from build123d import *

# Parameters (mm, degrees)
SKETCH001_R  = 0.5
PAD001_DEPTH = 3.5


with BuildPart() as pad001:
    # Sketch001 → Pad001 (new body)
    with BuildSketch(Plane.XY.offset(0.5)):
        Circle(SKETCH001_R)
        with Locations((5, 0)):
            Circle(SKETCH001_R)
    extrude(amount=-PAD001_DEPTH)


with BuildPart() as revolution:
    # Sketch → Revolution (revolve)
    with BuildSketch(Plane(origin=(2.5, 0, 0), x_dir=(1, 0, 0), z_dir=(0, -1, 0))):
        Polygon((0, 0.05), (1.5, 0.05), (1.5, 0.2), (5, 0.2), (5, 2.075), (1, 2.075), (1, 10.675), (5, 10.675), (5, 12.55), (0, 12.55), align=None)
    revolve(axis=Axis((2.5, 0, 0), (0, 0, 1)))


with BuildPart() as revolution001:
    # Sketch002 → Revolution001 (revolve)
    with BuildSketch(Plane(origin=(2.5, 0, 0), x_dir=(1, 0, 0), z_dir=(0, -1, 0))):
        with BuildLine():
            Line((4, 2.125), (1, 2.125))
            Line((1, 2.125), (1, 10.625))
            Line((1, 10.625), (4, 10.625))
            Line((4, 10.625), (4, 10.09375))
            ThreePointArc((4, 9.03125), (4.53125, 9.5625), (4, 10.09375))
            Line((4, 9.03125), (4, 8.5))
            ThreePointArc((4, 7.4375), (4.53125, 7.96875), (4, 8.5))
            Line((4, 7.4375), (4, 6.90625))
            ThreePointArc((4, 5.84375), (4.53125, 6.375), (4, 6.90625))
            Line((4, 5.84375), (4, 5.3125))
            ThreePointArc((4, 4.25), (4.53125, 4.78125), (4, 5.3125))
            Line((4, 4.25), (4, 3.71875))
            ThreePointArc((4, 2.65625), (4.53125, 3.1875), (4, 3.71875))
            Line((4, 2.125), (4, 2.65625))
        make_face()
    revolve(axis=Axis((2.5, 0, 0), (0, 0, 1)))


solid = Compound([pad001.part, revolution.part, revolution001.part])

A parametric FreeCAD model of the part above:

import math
import FreeCAD as App
import Part
import Sketcher
from FreeCAD import Vector
Q = App.Units.Quantity

doc = App.newDocument("Part")
params = doc.addObject("Spreadsheet::Sheet", "Params")
for row, (alias, value) in enumerate([
    ("sketch1_diameter", "1 mm"),
    ("pad1_length", "3.5 mm"),
    ("sketch2_width", "4 mm"),
    ("sketch2_width2", "5 mm"),
    ("sketch2_width3", "1.5 mm"),
    ("sketch2_height", "8.6 mm"),
    ("sketch2_height2", "12.5 mm"),
    ("revolution_angle", "360 deg"),
    ("sketch3_width", "3 mm"),
    ("sketch3_height", "8.5 mm"),
    ("revolution2_angle", "360 deg"),
], start=1):
    params.set(f"A{row}", alias)
    params.set(f"B{row}", "=" + value)
    params.setAlias(f"B{row}", alias)

body = doc.addObject("PartDesign::Body", "Body")
body.AllowCompound = True

# Sketch on XY plane
sketch1 = body.newObject("Sketcher::SketchObject", "Sketch")
sketch1.AttachmentSupport = (doc.getObject("XY_Plane"), [""])
sketch1.MapMode = "FlatFace"
sketch1.AttachmentOffset = App.Placement(Vector(0, 0, 0.5), App.Rotation())
sketch1.addGeometry([
    Part.Circle(Vector(0, 0, 0), Vector(0, 0, 1), 0.5),
    Part.Circle(Vector(5, 0, 0), Vector(0, 0, 1), 0.5),
], False)
sketch1.addConstraint([
    Sketcher.Constraint("Coincident", 0, 3, -1, 1),
    Sketcher.Constraint("Equal", 0, 1),
    Sketcher.Constraint("PointOnObject", 1, 3, -1),
    Sketcher.Constraint("Diameter", 0, Q("1 mm")),
    Sketcher.Constraint("DistanceX", -1, 1, 1, 3, Q("5 mm")),
])
sketch1.setExpression("Constraints[3]", "Params.sketch1_diameter")
pad1 = body.newObject("PartDesign::Pad", "Pad")
pad1.Profile = sketch1
pad1.setExpression("Length", "Params.pad1_length")
pad1.Reversed = True
body2 = doc.addObject("PartDesign::Body", "Body001")

# Sketch on XZ plane
sketch2 = body2.newObject("Sketcher::SketchObject", "Sketch001")
sketch2.AttachmentSupport = (doc.getObject("XZ_Plane001"), [""])
sketch2.MapMode = "FlatFace"
sketch2.addGeometry([
    Part.LineSegment(Vector(2.5, 0.05, 0), Vector(4, 0.05, 0)),  # 0
    Part.LineSegment(Vector(4, 0.05, 0), Vector(4, 0.2, 0)),  # 1
    Part.LineSegment(Vector(4, 0.2, 0), Vector(7.5, 0.2, 0)),  # 2
    Part.LineSegment(Vector(7.5, 0.2, 0), Vector(7.5, 2.08, 0)),  # 3
    Part.LineSegment(Vector(7.5, 2.08, 0), Vector(3.5, 2.08, 0)),  # 4
    Part.LineSegment(Vector(3.5, 2.08, 0), Vector(3.5, 10.68, 0)),  # 5
    Part.LineSegment(Vector(3.5, 10.68, 0), Vector(7.5, 10.68, 0)),  # 6
    Part.LineSegment(Vector(7.5, 10.68, 0), Vector(7.5, 12.55, 0)),  # 7
    Part.LineSegment(Vector(7.5, 12.55, 0), Vector(2.5, 12.55, 0)),  # 8
    Part.LineSegment(Vector(2.5, 12.55, 0), Vector(2.5, 0.05, 0)),  # 9
], False)
sketch2.addGeometry(Part.LineSegment(Vector(2.5, 0.05, 0), Vector(2.5, 12.55, 0)), True)  # axis
sketch2.addConstraint([
    Sketcher.Constraint("Coincident", 0, 2, 1, 1),
    Sketcher.Constraint("Coincident", 1, 2, 2, 1),
    Sketcher.Constraint("Coincident", 2, 2, 3, 1),
    Sketcher.Constraint("Coincident", 3, 2, 4, 1),
    Sketcher.Constraint("Coincident", 4, 2, 5, 1),
    Sketcher.Constraint("Coincident", 5, 2, 6, 1),
    Sketcher.Constraint("Coincident", 6, 2, 7, 1),
    Sketcher.Constraint("Coincident", 7, 2, 8, 1),
    Sketcher.Constraint("Coincident", 8, 2, 9, 1),
    Sketcher.Constraint("Coincident", 9, 2, 0, 1),
    Sketcher.Constraint("Horizontal", 0),
    Sketcher.Constraint("Vertical", 1),
    Sketcher.Constraint("Horizontal", 2),
    Sketcher.Constraint("Vertical", 3),
    Sketcher.Constraint("Horizontal", 4),
    Sketcher.Constraint("Vertical", 5),
    Sketcher.Constraint("Horizontal", 6),
    Sketcher.Constraint("Vertical", 7),
    Sketcher.Constraint("Horizontal", 8),
    Sketcher.Constraint("Vertical", 9),
    Sketcher.Constraint("Vertical", 10),
    Sketcher.Constraint("Coincident", 10, 1, 9, 2),
    Sketcher.Constraint("Horizontal", 7, 2, 10, 2),
    Sketcher.Constraint("Vertical", 3, 2, 6, 2),
    Sketcher.Constraint("Equal", 3, 7),
    Sketcher.Constraint("DistanceX", 4, 2, 4, 1, Q("4 mm")),
    Sketcher.Constraint("DistanceX", 8, 2, 8, 1, Q("5 mm")),
    Sketcher.Constraint("DistanceX", 0, 1, 0, 2, Q("1.5 mm")),
    Sketcher.Constraint("DistanceY", 5, 1, 5, 2, Q("8.6 mm")),
    Sketcher.Constraint("DistanceY", 9, 2, 9, 1, Q("12.5 mm")),
    Sketcher.Constraint("DistanceX", -1, 1, 0, 2, Q("4 mm")),
    Sketcher.Constraint("DistanceY", 1, 1, 1, 2, Q("0.15 mm")),
    Sketcher.Constraint("DistanceY", -1, 1, 1, 2, Q("0.2 mm")),
])
sketch2.setExpression("Constraints[25]", "Params.sketch2_width")
sketch2.setExpression("Constraints[26]", "Params.sketch2_width2")
sketch2.setExpression("Constraints[27]", "Params.sketch2_width3")
sketch2.setExpression("Constraints[28]", "Params.sketch2_height")
sketch2.setExpression("Constraints[29]", "Params.sketch2_height2")
revolution = body2.newObject("PartDesign::Revolution", "Revolution")
revolution.Profile = sketch2
revolution.ReferenceAxis = (sketch2, ["Axis0"])
revolution.setExpression("Angle", "Params.revolution_angle")
body3 = doc.addObject("PartDesign::Body", "Body002")

# Sketch on XZ plane
sketch3 = body3.newObject("Sketcher::SketchObject", "Sketch002")
sketch3.AttachmentSupport = (doc.getObject("XZ_Plane002"), [""])
sketch3.MapMode = "FlatFace"
sketch3.addGeometry([
    Part.LineSegment(Vector(3.5, 2.1, 0), Vector(6.5, 2.1, 0)),  # 0
    Part.LineSegment(Vector(6.5, 2.1, 0), Vector(6.5, 2.7, 0)),  # 1
    Part.ArcOfCircle(Part.Circle(Vector(6.5, 3.2, 0), Vector(0, 0, 1), 0.5), math.radians(-90), math.radians(90)),  # 2
    Part.LineSegment(Vector(6.5, 3.7, 0), Vector(6.5, 4.2, 0)),  # 3
    Part.ArcOfCircle(Part.Circle(Vector(6.5, 4.8, 0), Vector(0, 0, 1), 0.5), math.radians(-90), math.radians(90)),  # 4
    Part.LineSegment(Vector(6.5, 5.3, 0), Vector(6.5, 5.8, 0)),  # 5
    Part.ArcOfCircle(Part.Circle(Vector(6.5, 6.4, 0), Vector(0, 0, 1), 0.5), math.radians(-90), math.radians(90)),  # 6
    Part.LineSegment(Vector(6.5, 6.9, 0), Vector(6.5, 7.4, 0)),  # 7
    Part.ArcOfCircle(Part.Circle(Vector(6.5, 8, 0), Vector(0, 0, 1), 0.5), math.radians(-90), math.radians(90)),  # 8
    Part.LineSegment(Vector(6.5, 8.5, 0), Vector(6.5, 9, 0)),  # 9
    Part.ArcOfCircle(Part.Circle(Vector(6.5, 9.6, 0), Vector(0, 0, 1), 0.5), math.radians(-90), math.radians(90)),  # 10
    Part.LineSegment(Vector(6.5, 10.1, 0), Vector(6.5, 10.6, 0)),  # 11
    Part.LineSegment(Vector(6.5, 10.6, 0), Vector(3.5, 10.6, 0)),  # 12
    Part.LineSegment(Vector(3.5, 10.6, 0), Vector(3.5, 2.1, 0)),  # 13
], False)
sketch3.addGeometry(Part.LineSegment(Vector(2.5, 2.1, 0), Vector(2.5, 10.6, 0)), True)  # axis
sketch3.addConstraint([
    Sketcher.Constraint("Coincident", 0, 2, 1, 1),
    Sketcher.Constraint("Coincident", 1, 2, 2, 1),
    Sketcher.Constraint("Coincident", 2, 2, 3, 1),
    Sketcher.Constraint("Coincident", 3, 2, 4, 1),
    Sketcher.Constraint("Coincident", 4, 2, 5, 1),
    Sketcher.Constraint("Coincident", 5, 2, 6, 1),
    Sketcher.Constraint("Coincident", 6, 2, 7, 1),
    Sketcher.Constraint("Coincident", 7, 2, 8, 1),
    Sketcher.Constraint("Coincident", 8, 2, 9, 1),
    Sketcher.Constraint("Coincident", 9, 2, 10, 1),
    Sketcher.Constraint("Coincident", 10, 2, 11, 1),
    Sketcher.Constraint("Coincident", 11, 2, 12, 1),
    Sketcher.Constraint("Coincident", 12, 2, 13, 1),
    Sketcher.Constraint("Coincident", 13, 2, 0, 1),
    Sketcher.Constraint("Horizontal", 0),
    Sketcher.Constraint("Vertical", 1),
    Sketcher.Constraint("Vertical", 3),
    Sketcher.Constraint("Vertical", 5),
    Sketcher.Constraint("Vertical", 7),
    Sketcher.Constraint("Vertical", 9),
    Sketcher.Constraint("Vertical", 11),
    Sketcher.Constraint("Horizontal", 12),
    Sketcher.Constraint("Vertical", 13),
    Sketcher.Constraint("Vertical", 14),
    Sketcher.Constraint("Equal", 2, 4),
    Sketcher.Constraint("Equal", 4, 6),
    Sketcher.Constraint("Equal", 6, 8),
    Sketcher.Constraint("Equal", 8, 10),
    Sketcher.Constraint("Horizontal", 13, 2, 14, 1),
    Sketcher.Constraint("Horizontal", 12, 2, 14, 2),
    Sketcher.Constraint("Vertical", 2, 3, 4, 3),
    Sketcher.Constraint("Vertical", 4, 3, 6, 3),
    Sketcher.Constraint("Vertical", 6, 3, 8, 3),
    Sketcher.Constraint("Vertical", 8, 3, 10, 3),
    Sketcher.Constraint("Vertical", 10, 3, 0, 2),
    Sketcher.Constraint("Vertical", 1, 2, 2, 2),
    Sketcher.Constraint("Vertical", 3, 2, 4, 2),
    Sketcher.Constraint("Vertical", 5, 2, 6, 2),
    Sketcher.Constraint("Vertical", 7, 2, 8, 2),
    Sketcher.Constraint("Vertical", 9, 2, 10, 2),
    Sketcher.Constraint("Equal", 1, 3),
    Sketcher.Constraint("Equal", 3, 5),
    Sketcher.Constraint("Equal", 5, 7),
    Sketcher.Constraint("Equal", 7, 9),
    Sketcher.Constraint("Equal", 9, 11),
    Sketcher.Constraint("DistanceX", 0, 1, 0, 2, Q("3 mm")),
    Sketcher.Constraint("DistanceY", 13, 2, 13, 1, Q("8.5 mm")),
    Sketcher.Constraint("DistanceX", 14, 1, 13, 2, Q("1 mm")),
    Sketcher.Constraint("DistanceX", -1, 1, 2, 3, Q("6.5 mm")),
    Sketcher.Constraint("DistanceY", -1, 1, 8, 2, Q("8.5 mm")),
    Sketcher.Constraint("DistanceY", -1, 1, 3, 2, Q("4.25 mm")),
])
sketch3.setExpression("Constraints[45]", "Params.sketch3_width")
sketch3.setExpression("Constraints[46]", "Params.sketch3_height")
revolution2 = body3.newObject("PartDesign::Revolution", "Revolution001")
revolution2.Profile = sketch3
revolution2.ReferenceAxis = (sketch3, ["Axis0"])
revolution2.setExpression("Angle", "Params.revolution2_angle")

doc.recompute()
